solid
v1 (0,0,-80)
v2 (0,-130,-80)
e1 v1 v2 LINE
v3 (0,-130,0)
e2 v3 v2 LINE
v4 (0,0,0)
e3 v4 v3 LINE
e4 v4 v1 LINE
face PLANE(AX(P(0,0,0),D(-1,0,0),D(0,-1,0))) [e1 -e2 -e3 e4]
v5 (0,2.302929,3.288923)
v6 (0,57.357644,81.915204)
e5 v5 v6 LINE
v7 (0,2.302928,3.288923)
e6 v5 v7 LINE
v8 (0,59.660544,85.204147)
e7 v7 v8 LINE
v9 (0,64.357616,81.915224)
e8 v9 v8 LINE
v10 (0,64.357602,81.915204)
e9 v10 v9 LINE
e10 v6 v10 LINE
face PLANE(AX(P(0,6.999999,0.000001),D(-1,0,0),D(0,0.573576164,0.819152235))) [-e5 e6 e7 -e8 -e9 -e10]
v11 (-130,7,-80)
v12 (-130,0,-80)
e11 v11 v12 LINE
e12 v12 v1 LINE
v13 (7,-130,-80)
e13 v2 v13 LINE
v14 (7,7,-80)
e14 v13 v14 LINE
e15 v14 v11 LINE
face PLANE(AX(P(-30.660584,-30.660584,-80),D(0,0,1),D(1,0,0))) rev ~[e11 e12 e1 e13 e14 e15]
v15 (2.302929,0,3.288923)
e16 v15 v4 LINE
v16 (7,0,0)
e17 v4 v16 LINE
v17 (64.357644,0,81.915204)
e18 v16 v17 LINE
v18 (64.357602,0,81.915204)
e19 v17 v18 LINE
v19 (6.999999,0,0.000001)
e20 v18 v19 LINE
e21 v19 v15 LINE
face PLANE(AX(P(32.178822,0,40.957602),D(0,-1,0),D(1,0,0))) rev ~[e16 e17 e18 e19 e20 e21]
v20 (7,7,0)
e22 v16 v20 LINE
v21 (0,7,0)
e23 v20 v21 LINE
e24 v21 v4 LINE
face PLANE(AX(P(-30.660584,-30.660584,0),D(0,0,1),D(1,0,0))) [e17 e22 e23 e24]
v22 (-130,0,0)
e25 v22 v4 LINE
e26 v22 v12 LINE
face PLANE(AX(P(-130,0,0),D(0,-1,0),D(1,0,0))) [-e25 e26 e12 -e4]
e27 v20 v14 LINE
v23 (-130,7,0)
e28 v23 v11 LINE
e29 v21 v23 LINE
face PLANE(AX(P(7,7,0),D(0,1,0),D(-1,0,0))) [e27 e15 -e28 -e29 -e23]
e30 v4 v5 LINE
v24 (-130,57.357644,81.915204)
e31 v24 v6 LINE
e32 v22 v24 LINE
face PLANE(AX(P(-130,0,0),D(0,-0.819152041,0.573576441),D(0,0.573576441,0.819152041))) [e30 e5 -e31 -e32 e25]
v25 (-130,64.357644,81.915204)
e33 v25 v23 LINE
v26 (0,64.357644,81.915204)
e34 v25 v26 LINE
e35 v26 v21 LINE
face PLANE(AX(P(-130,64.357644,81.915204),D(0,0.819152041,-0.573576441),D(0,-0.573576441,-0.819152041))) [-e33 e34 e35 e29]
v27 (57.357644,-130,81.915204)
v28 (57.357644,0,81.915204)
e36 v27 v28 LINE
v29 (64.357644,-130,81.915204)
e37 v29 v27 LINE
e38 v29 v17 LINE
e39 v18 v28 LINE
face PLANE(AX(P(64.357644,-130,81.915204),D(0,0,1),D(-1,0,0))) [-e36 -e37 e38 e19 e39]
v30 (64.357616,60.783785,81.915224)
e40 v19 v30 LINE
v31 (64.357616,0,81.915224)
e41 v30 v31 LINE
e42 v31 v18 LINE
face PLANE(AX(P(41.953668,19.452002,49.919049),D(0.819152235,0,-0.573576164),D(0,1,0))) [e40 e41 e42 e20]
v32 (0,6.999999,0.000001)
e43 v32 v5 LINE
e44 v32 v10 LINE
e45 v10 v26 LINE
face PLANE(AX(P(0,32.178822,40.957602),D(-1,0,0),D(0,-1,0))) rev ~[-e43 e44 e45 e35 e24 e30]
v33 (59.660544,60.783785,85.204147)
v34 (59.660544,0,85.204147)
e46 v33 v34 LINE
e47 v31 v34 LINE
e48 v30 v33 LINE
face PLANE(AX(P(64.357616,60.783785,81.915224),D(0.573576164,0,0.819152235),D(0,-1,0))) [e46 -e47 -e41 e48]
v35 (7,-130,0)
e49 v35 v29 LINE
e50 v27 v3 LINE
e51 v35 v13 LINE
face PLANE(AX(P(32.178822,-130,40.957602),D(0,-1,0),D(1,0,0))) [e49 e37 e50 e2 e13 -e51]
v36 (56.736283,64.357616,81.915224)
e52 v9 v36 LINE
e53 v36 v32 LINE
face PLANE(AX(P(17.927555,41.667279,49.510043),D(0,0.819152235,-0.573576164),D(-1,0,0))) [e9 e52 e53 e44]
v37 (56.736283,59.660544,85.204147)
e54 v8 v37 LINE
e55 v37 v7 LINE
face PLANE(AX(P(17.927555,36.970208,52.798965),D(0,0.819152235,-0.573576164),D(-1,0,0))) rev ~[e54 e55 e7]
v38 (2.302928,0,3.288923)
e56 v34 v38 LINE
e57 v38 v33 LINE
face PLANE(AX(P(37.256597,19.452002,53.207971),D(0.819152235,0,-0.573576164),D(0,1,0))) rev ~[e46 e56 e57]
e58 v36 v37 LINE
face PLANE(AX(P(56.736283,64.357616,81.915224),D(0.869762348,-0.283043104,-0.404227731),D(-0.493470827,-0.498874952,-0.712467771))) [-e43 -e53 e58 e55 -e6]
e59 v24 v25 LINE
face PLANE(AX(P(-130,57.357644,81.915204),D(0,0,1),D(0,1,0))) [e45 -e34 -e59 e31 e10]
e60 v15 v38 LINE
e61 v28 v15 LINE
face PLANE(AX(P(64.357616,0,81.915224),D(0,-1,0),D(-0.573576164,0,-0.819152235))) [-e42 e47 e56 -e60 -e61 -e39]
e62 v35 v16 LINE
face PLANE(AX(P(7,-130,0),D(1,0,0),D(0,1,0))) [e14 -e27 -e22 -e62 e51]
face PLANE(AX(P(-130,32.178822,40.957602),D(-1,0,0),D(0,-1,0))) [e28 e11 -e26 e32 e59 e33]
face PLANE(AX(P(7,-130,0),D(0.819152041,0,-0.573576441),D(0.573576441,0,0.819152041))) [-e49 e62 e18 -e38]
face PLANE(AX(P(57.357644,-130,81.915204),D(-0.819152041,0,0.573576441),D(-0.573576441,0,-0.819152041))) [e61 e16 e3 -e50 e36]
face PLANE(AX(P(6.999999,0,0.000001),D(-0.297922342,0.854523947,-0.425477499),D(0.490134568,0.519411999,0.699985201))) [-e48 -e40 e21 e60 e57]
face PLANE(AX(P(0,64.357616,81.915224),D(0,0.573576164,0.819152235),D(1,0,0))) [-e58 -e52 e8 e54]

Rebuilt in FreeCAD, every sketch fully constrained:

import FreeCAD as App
import Part
import Sketcher
Q = App.Units.Quantity

doc = App.newDocument("Part")
body = doc.addObject("PartDesign::Body", "Body")

# Sketch on XY plane
sketch1 = body.newObject("Sketcher::SketchObject", "Sketch")
sketch1.AttachmentSupport = (doc.getObject("XY_Plane"), [""])
sketch1.MapMode = "FlatFace"
sketch1.addGeometry([
    Part.LineSegment(App.Vector(-130, 7, 0), App.Vector(-130, 0, 0)),  # 0
    Part.LineSegment(App.Vector(-130, 0, 0), App.Vector(0, 0, 0)),  # 1
    Part.LineSegment(App.Vector(0, 0, 0), App.Vector(0, -130, 0)),  # 2
    Part.LineSegment(App.Vector(0, -130, 0), App.Vector(7, -130, 0)),  # 3
    Part.LineSegment(App.Vector(7, -130, 0), App.Vector(7, 7, 0)),  # 4
    Part.LineSegment(App.Vector(7, 7, 0), App.Vector(-130, 7, 0)),  # 5
], False)
sketch1.addConstraint([
    Sketcher.Constraint("Coincident", 0, 2, 1, 1),
    Sketcher.Constraint("Coincident", 1, 2, 2, 1),
    Sketcher.Constraint("Coincident", 2, 2, 3, 1),
    Sketcher.Constraint("Coincident", 3, 2, 4, 1),
    Sketcher.Constraint("Coincident", 4, 2, 5, 1),
    Sketcher.Constraint("Coincident", 5, 2, 0, 1),
    Sketcher.Constraint("Vertical", 0),
    Sketcher.Constraint("Horizontal", 1),
    Sketcher.Constraint("Vertical", 2),
    Sketcher.Constraint("Horizontal", 3),
    Sketcher.Constraint("Vertical", 4),
    Sketcher.Constraint("Horizontal", 5),
    Sketcher.Constraint("Coincident", 1, 2, -1, 1),
    Sketcher.Constraint("Equal", 3, 0),
    Sketcher.Constraint("Equal", 1, 2),
    Sketcher.Constraint("DistanceX", 1, 1, 1, 2, Q("130 mm")),
    Sketcher.Constraint("DistanceX", 3, 1, 3, 2, Q("7 mm")),
])
pad1 = body.newObject("PartDesign::Pad", "Pad")
pad1.Profile = sketch1
pad1.Length = 80
pad1.Reversed = True

# Sketch on XZ plane
sketch2 = body.newObject("Sketcher::SketchObject", "Sketch001")
sketch2.AttachmentSupport = (doc.getObject("XZ_Plane"), [""])
sketch2.MapMode = "FlatFace"
sketch2.AttachmentOffset = App.Placement(App.Vector(0, 0, 130), App.Rotation())
sketch2.addGeometry([
    Part.LineSegment(App.Vector(57, 82, 0), App.Vector(0, 0, 0)),
    Part.LineSegment(App.Vector(0, 0, 0), App.Vector(7, 0, 0)),
    Part.LineSegment(App.Vector(7, 0, 0), App.Vector(64, 82, 0)),
    Part.LineSegment(App.Vector(64, 82, 0), App.Vector(57, 82, 0)),
], False)
sketch2.addConstraint([
    Sketcher.Constraint("Coincident", 0, 2, 1, 1),
    Sketcher.Constraint("Coincident", 1, 2, 2, 1),
    Sketcher.Constraint("Coincident", 2, 2, 3, 1),
    Sketcher.Constraint("Coincident", 3, 2, 0, 1),
    Sketcher.Constraint("Horizontal", 1),
    Sketcher.Constraint("Horizontal", 3),
    Sketcher.Constraint("Coincident", 0, 2, -1, 1),
    Sketcher.Constraint("Parallel", 0, 2),
    Sketcher.Constraint("DistanceX", 1, 1, 1, 2, Q("7 mm")),
    Sketcher.Constraint("Angle", 0, Q("-125 deg")),
    Sketcher.Constraint("Distance", 0, Q("100 mm")),
])
pad2 = body.newObject("PartDesign::Pad", "Pad001")
pad2.Profile = sketch2
pad2.Length = 130
pad2.Reversed = True

# Sketch on YZ plane
sketch3 = body.newObject("Sketcher::SketchObject", "Sketch002")
sketch3.AttachmentSupport = (doc.getObject("YZ_Plane"), [""])
sketch3.MapMode = "FlatFace"
sketch3.AttachmentOffset = App.Placement(App.Vector(0, 0, -130), App.Rotation())
sketch3.addGeometry([
    Part.LineSegment(App.Vector(7, 0, 0), App.Vector(0, 0, 0)),
    Part.LineSegment(App.Vector(0, 0, 0), App.Vector(57, 82, 0)),
    Part.LineSegment(App.Vector(57, 82, 0), App.Vector(64, 82, 0)),
    Part.LineSegment(App.Vector(64, 82, 0), App.Vector(7, 0, 0)),
], False)
sketch3.addConstraint([
    Sketcher.Constraint("Coincident", 0, 2, 1, 1),
    Sketcher.Constraint("Coincident", 1, 2, 2, 1),
    Sketcher.Constraint("Coincident", 2, 2, 3, 1),
    Sketcher.Constraint("Coincident", 3, 2, 0, 1),
    Sketcher.Constraint("Horizontal", 0),
    Sketcher.Constraint("Horizontal", 2),
    Sketcher.Constraint("Coincident", 0, 2, -1, 1),
    Sketcher.Constraint("Parallel", 1, 3),
    Sketcher.Constraint("DistanceX", 0, 2, 0, 1, Q("7 mm")),
    Sketcher.Constraint("Angle", 1, Q("55 deg")),
    Sketcher.Constraint("Distance", 1, Q("100 mm")),
])
pad3 = body.newObject("PartDesign::Pad", "Pad002")
pad3.Profile = sketch3
pad3.Length = 130

# Sketch on an angled plane
sketch4 = body.newObject("Sketcher::SketchObject", "Sketch003")
sketch4.Placement = App.Placement(App.Vector(4.697071, 0, -3.288924), App.Rotation(App.Vector(0, 1, 0), App.Vector(0.573576164, 0, 0.819152235), App.Vector(0.819152235, 0, -0.573576164), "ZXY"))
sketch4.addGeometry([
    Part.LineSegment(App.Vector(61, 104, 0), App.Vector(0, 104, 0)),
    Part.LineSegment(App.Vector(0, 104, 0), App.Vector(0, 4, 0)),
    Part.LineSegment(App.Vector(0, 4, 0), App.Vector(61, 104, 0)),
], False)
sketch4.addConstraint([
    Sketcher.Constraint("Coincident", 0, 2, 1, 1),
    Sketcher.Constraint("Coincident", 1, 2, 2, 1),
    Sketcher.Constraint("Coincident", 2, 2, 0, 1),
    Sketcher.Constraint("Horizontal", 0),
    Sketcher.Constraint("Vertical", 1),
    Sketcher.Constraint("PointOnObject", 0, 2, -2),
    Sketcher.Constraint("DistanceY", 1, 2, 1, 1, Q("100 mm")),
    Sketcher.Constraint("Distance", 2, Q("117.024222 mm")),
    Sketcher.Constraint("DistanceY", -1, 1, 0, 2, Q("104.015035 mm")),
])
pad4 = body.newObject("PartDesign::Pad", "Pad003")
pad4.Profile = sketch4
pad4.Length = 5.734064
pad4.Reversed = True

# Sketch on an angled plane
sketch5 = body.newObject("Sketcher::SketchObject", "Sketch004")
sketch5.Placement = App.Placement(App.Vector(0, 4.697071, -3.288924), App.Rotation(App.Vector(-1, 0, 0), App.Vector(0, 0.573576164, 0.819152235), App.Vector(0, 0.819152235, -0.573576164), "ZXY"))
sketch5.addGeometry([
    Part.LineSegment(App.Vector(0, 4, 0), App.Vector(0, 104, 0)),
    Part.LineSegment(App.Vector(0, 104, 0), App.Vector(-57, 104, 0)),
    Part.LineSegment(App.Vector(-57, 104, 0), App.Vector(0, 4, 0)),
], False)
sketch5.addConstraint([
    Sketcher.Constraint("Coincident", 0, 2, 1, 1),
    Sketcher.Constraint("Coincident", 1, 2, 2, 1),
    Sketcher.Constraint("Coincident", 2, 2, 0, 1),
    Sketcher.Constraint("Vertical", 0),
    Sketcher.Constraint("Horizontal", 1),
    Sketcher.Constraint("PointOnObject", 0, 2, -2),
    Sketcher.Constraint("DistanceY", 0, 1, 0, 2, Q("100 mm")),
    Sketcher.Constraint("DistanceX", 1, 2, 1, 1, Q("56.736283 mm")),
    Sketcher.Constraint("DistanceY", -1, 1, 0, 2, Q("104.015035 mm")),
])
pad5 = body.newObject("PartDesign::Pad", "Pad004")
pad5.Profile = sketch5
pad5.Length = 5.734064
pad5.Reversed = True

doc.recompute()
